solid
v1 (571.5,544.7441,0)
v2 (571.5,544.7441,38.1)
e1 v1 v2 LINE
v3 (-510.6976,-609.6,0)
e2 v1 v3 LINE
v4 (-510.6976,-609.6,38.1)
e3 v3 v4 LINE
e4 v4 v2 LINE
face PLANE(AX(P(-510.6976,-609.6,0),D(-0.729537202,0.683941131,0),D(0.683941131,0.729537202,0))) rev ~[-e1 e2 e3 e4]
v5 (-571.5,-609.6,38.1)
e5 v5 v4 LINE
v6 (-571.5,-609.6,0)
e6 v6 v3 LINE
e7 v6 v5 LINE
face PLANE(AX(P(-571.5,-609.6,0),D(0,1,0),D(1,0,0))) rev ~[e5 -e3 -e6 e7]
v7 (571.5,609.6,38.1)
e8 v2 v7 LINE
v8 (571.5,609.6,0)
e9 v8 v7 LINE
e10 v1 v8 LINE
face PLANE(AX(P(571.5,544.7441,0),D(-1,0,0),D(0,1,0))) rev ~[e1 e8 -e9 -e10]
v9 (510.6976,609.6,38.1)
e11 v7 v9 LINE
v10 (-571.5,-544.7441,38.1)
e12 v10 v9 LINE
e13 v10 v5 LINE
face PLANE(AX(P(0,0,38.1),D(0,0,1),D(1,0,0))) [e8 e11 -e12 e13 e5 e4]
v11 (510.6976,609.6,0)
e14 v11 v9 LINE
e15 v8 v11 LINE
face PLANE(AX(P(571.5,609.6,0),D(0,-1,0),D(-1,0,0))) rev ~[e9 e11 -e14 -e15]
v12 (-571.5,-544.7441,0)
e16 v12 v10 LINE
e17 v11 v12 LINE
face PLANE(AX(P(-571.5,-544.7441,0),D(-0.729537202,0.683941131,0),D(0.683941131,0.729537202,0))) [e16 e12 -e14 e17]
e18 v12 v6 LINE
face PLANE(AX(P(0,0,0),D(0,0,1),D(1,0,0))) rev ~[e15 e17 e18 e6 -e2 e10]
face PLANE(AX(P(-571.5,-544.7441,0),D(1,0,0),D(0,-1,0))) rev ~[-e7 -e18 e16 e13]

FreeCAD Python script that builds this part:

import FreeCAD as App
import Part
import Sketcher
Q = App.Units.Quantity


def add_polygon(sketch, points):
    """Adds a closed chain of lines whose ends are joined by coincident constraints."""
    first, n = sketch.GeometryCount, len(points)
    for a, b in zip(points, points[1:] + points[:1]):
        sketch.addGeometry(Part.LineSegment(App.Vector(*a, 0), App.Vector(*b, 0)), False)
    for i in range(n):
        sketch.addConstraint(Sketcher.Constraint("Coincident", first + i, 2, first + (i + 1) % n, 1))

doc = App.newDocument("Part")
body = doc.addObject("PartDesign::Body", "Body")

sketch1 = body.newObject("Sketcher::SketchObject", "Sketch")
sketch1.AttachmentSupport = (doc.getObject("XY_Plane"), [""])
sketch1.MapMode = "FlatFace"
add_polygon(sketch1, [(-572, -545), (-572, -610), (-511, -610), (572, 545), (572, 610), (511, 610)])
sketch1.addConstraint([
    Sketcher.Constraint("Vertical", 0),
    Sketcher.Constraint("Horizontal", 1),
    Sketcher.Constraint("Vertical", 3),
    Sketcher.Constraint("Horizontal", 4),
    Sketcher.Constraint("Symmetric", 0, 2, 3, 2, -1, 1),
    Sketcher.Constraint("Parallel", 2, 5),
    Sketcher.Constraint("Equal", 1, 4),
    Sketcher.Constraint("DistanceY", 0, 2, -1, 1, Q("24 in")),
    Sketcher.Constraint("DistanceX", 0, 2, 2, 2, Q("45 in")),
    Sketcher.Constraint("DistanceX", 1, 1, 1, 2, Q("2.3938 in")),
    Sketcher.Constraint("DistanceY", 0, 2, 0, 1, 64.856),
])
pad1 = body.newObject("PartDesign::Pad", "Pad")
pad1.Profile = sketch1
pad1.Length = Q("1.5 in")

doc.recompute()
